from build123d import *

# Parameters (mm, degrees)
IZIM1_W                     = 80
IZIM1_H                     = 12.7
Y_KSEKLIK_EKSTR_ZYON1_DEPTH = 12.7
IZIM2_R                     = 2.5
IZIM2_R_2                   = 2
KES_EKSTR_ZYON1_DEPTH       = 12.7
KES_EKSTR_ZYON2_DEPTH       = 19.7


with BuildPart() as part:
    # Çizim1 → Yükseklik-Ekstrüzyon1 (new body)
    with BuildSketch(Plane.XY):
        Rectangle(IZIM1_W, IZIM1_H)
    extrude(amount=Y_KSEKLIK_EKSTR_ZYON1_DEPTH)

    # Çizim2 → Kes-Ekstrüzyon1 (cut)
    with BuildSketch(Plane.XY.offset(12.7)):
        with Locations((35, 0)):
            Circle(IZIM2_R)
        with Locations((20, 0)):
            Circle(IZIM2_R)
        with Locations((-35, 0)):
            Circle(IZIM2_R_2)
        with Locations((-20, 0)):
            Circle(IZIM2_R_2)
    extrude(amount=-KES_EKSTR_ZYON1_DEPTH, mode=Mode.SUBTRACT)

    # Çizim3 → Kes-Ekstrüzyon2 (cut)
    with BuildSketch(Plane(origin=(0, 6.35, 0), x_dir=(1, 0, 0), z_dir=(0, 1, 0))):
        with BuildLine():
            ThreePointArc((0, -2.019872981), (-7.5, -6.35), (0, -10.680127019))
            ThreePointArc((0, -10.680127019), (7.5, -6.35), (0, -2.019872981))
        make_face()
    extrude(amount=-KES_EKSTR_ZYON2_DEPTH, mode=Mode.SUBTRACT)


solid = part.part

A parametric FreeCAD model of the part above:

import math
import FreeCAD as App
import Part
import Sketcher

V = App.Vector


def add_polygon(sketch, points):
    """Adds a closed chain of lines whose ends are joined by coincident constraints."""
    first, n = sketch.GeometryCount, len(points)
    for a, b in zip(points, points[1:] + points[:1]):
        sketch.addGeometry(Part.LineSegment(App.Vector(*a, 0), App.Vector(*b, 0)), False)
    for i in range(n):
        sketch.addConstraint(Sketcher.Constraint("Coincident", first + i, 2, first + (i + 1) % n, 1))

doc = App.newDocument("Part")
body = doc.addObject("PartDesign::Body", "Body")

sketch1 = doc.addObject("Sketcher::SketchObject", "Sketch")
body.addObject(sketch1)
sketch1.AttachmentSupport = (doc.XY_Plane, [""])
sketch1.MapMode = "FlatFace"
add_polygon(sketch1, [(-40, 6), (-40, -6), (40, -6), (40, 6)])
sketch1.addConstraint(Sketcher.Constraint("Vertical", 0))
sketch1.addConstraint(Sketcher.Constraint("Horizontal", 1))
sketch1.addConstraint(Sketcher.Constraint("Vertical", 2))
sketch1.addConstraint(Sketcher.Constraint("Horizontal", 3))
sketch1.addConstraint(Sketcher.Constraint("Symmetric", 0, 2, 2, 2, -1, 1))
sketch1.addConstraint(Sketcher.Constraint("DistanceX", 1, 1, 1, 2, 80.0))
sketch1.addConstraint(Sketcher.Constraint("DistanceY", 0, 2, 0, 1, 12.7))
pad1 = doc.addObject("PartDesign::Pad", "Pad")
body.addObject(pad1)
pad1.Profile = sketch1
pad1.Length = 12.7

sketch2 = doc.addObject("Sketcher::SketchObject", "Sketch001")
body.addObject(sketch2)
sketch2.AttachmentSupport = (doc.XY_Plane, [""])
sketch2.MapMode = "FlatFace"
sketch2.AttachmentOffset = App.Placement(V(0, 0, 12.7), App.Rotation())
sketch2.addGeometry(Part.Circle(V(35, 0, 0), V(0, 0, 1), 2.5), False)
sketch2.addGeometry(Part.Circle(V(20, 0, 0), V(0, 0, 1), 2.5), False)
sketch2.addGeometry(Part.Circle(V(-35, 0, 0), V(0, 0, 1), 2), False)
sketch2.addGeometry(Part.Circle(V(-20, 0, 0), V(0, 0, 1), 2), False)
sketch2.addConstraint(Sketcher.Constraint("Equal", 0, 1))
sketch2.addConstraint(Sketcher.Constraint("Equal", 2, 3))
sketch2.addConstraint(Sketcher.Constraint("Symmetric", 0, 3, 2, 3, -1, 1))
sketch2.addConstraint(Sketcher.Constraint("Symmetric", 1, 3, 3, 3, -1, 1))
sketch2.addConstraint(Sketcher.Constraint("PointOnObject", 0, 3, -1))
sketch2.addConstraint(Sketcher.Constraint("PointOnObject", 1, 3, -1))
sketch2.addConstraint(Sketcher.Constraint("Diameter", 0, 5.0))
sketch2.addConstraint(Sketcher.Constraint("Diameter", 2, 4.0))
sketch2.addConstraint(Sketcher.Constraint("DistanceX", -1, 1, 0, 3, 35.0))
sketch2.addConstraint(Sketcher.Constraint("DistanceX", -1, 1, 1, 3, 20.0))
pocket1 = doc.addObject("PartDesign::Pocket", "Pocket")
body.addObject(pocket1)
pocket1.Profile = sketch2
pocket1.Length = 12.7

sketch3 = doc.addObject("Sketcher::SketchObject", "Sketch002")
body.addObject(sketch3)
sketch3.AttachmentSupport = (doc.XZ_Plane, [""])
sketch3.MapMode = "FlatFace"
sketch3.AttachmentOffset = App.Placement(V(0, 0, -6.35), App.Rotation())
sketch3.addGeometry(Part.ArcOfCircle(Part.Circle(V(-2, 6, 0), V(0, 0, 1), 5), math.radians(60), math.radians(300)), False)
sketch3.addGeometry(Part.ArcOfCircle(Part.Circle(V(2, 6, 0), V(0, 0, 1), 5), math.radians(-120), math.radians(120)), False)
sketch3.addConstraint(Sketcher.Constraint("Coincident", 0, 1, 1, 2))
sketch3.addConstraint(Sketcher.Constraint("Coincident", 1, 1, 0, 2))
sketch3.addConstraint(Sketcher.Constraint("Equal", 0, 1))
sketch3.addConstraint(Sketcher.Constraint("Symmetric", 0, 3, 1, 3, -2))
sketch3.addConstraint(Sketcher.Constraint("Radius", 0, 5.0))
sketch3.addConstraint(Sketcher.Constraint("DistanceX", 0, 3, 1, 3, 5.0))
sketch3.addConstraint(Sketcher.Constraint("DistanceY", -1, 1, 0, 3, 6.35))
pocket2 = doc.addObject("PartDesign::Pocket", "Pocket001")
body.addObject(pocket2)
pocket2.Profile = sketch3
pocket2.Length = 19.7
pocket2.Reversed = True

doc.recompute()
